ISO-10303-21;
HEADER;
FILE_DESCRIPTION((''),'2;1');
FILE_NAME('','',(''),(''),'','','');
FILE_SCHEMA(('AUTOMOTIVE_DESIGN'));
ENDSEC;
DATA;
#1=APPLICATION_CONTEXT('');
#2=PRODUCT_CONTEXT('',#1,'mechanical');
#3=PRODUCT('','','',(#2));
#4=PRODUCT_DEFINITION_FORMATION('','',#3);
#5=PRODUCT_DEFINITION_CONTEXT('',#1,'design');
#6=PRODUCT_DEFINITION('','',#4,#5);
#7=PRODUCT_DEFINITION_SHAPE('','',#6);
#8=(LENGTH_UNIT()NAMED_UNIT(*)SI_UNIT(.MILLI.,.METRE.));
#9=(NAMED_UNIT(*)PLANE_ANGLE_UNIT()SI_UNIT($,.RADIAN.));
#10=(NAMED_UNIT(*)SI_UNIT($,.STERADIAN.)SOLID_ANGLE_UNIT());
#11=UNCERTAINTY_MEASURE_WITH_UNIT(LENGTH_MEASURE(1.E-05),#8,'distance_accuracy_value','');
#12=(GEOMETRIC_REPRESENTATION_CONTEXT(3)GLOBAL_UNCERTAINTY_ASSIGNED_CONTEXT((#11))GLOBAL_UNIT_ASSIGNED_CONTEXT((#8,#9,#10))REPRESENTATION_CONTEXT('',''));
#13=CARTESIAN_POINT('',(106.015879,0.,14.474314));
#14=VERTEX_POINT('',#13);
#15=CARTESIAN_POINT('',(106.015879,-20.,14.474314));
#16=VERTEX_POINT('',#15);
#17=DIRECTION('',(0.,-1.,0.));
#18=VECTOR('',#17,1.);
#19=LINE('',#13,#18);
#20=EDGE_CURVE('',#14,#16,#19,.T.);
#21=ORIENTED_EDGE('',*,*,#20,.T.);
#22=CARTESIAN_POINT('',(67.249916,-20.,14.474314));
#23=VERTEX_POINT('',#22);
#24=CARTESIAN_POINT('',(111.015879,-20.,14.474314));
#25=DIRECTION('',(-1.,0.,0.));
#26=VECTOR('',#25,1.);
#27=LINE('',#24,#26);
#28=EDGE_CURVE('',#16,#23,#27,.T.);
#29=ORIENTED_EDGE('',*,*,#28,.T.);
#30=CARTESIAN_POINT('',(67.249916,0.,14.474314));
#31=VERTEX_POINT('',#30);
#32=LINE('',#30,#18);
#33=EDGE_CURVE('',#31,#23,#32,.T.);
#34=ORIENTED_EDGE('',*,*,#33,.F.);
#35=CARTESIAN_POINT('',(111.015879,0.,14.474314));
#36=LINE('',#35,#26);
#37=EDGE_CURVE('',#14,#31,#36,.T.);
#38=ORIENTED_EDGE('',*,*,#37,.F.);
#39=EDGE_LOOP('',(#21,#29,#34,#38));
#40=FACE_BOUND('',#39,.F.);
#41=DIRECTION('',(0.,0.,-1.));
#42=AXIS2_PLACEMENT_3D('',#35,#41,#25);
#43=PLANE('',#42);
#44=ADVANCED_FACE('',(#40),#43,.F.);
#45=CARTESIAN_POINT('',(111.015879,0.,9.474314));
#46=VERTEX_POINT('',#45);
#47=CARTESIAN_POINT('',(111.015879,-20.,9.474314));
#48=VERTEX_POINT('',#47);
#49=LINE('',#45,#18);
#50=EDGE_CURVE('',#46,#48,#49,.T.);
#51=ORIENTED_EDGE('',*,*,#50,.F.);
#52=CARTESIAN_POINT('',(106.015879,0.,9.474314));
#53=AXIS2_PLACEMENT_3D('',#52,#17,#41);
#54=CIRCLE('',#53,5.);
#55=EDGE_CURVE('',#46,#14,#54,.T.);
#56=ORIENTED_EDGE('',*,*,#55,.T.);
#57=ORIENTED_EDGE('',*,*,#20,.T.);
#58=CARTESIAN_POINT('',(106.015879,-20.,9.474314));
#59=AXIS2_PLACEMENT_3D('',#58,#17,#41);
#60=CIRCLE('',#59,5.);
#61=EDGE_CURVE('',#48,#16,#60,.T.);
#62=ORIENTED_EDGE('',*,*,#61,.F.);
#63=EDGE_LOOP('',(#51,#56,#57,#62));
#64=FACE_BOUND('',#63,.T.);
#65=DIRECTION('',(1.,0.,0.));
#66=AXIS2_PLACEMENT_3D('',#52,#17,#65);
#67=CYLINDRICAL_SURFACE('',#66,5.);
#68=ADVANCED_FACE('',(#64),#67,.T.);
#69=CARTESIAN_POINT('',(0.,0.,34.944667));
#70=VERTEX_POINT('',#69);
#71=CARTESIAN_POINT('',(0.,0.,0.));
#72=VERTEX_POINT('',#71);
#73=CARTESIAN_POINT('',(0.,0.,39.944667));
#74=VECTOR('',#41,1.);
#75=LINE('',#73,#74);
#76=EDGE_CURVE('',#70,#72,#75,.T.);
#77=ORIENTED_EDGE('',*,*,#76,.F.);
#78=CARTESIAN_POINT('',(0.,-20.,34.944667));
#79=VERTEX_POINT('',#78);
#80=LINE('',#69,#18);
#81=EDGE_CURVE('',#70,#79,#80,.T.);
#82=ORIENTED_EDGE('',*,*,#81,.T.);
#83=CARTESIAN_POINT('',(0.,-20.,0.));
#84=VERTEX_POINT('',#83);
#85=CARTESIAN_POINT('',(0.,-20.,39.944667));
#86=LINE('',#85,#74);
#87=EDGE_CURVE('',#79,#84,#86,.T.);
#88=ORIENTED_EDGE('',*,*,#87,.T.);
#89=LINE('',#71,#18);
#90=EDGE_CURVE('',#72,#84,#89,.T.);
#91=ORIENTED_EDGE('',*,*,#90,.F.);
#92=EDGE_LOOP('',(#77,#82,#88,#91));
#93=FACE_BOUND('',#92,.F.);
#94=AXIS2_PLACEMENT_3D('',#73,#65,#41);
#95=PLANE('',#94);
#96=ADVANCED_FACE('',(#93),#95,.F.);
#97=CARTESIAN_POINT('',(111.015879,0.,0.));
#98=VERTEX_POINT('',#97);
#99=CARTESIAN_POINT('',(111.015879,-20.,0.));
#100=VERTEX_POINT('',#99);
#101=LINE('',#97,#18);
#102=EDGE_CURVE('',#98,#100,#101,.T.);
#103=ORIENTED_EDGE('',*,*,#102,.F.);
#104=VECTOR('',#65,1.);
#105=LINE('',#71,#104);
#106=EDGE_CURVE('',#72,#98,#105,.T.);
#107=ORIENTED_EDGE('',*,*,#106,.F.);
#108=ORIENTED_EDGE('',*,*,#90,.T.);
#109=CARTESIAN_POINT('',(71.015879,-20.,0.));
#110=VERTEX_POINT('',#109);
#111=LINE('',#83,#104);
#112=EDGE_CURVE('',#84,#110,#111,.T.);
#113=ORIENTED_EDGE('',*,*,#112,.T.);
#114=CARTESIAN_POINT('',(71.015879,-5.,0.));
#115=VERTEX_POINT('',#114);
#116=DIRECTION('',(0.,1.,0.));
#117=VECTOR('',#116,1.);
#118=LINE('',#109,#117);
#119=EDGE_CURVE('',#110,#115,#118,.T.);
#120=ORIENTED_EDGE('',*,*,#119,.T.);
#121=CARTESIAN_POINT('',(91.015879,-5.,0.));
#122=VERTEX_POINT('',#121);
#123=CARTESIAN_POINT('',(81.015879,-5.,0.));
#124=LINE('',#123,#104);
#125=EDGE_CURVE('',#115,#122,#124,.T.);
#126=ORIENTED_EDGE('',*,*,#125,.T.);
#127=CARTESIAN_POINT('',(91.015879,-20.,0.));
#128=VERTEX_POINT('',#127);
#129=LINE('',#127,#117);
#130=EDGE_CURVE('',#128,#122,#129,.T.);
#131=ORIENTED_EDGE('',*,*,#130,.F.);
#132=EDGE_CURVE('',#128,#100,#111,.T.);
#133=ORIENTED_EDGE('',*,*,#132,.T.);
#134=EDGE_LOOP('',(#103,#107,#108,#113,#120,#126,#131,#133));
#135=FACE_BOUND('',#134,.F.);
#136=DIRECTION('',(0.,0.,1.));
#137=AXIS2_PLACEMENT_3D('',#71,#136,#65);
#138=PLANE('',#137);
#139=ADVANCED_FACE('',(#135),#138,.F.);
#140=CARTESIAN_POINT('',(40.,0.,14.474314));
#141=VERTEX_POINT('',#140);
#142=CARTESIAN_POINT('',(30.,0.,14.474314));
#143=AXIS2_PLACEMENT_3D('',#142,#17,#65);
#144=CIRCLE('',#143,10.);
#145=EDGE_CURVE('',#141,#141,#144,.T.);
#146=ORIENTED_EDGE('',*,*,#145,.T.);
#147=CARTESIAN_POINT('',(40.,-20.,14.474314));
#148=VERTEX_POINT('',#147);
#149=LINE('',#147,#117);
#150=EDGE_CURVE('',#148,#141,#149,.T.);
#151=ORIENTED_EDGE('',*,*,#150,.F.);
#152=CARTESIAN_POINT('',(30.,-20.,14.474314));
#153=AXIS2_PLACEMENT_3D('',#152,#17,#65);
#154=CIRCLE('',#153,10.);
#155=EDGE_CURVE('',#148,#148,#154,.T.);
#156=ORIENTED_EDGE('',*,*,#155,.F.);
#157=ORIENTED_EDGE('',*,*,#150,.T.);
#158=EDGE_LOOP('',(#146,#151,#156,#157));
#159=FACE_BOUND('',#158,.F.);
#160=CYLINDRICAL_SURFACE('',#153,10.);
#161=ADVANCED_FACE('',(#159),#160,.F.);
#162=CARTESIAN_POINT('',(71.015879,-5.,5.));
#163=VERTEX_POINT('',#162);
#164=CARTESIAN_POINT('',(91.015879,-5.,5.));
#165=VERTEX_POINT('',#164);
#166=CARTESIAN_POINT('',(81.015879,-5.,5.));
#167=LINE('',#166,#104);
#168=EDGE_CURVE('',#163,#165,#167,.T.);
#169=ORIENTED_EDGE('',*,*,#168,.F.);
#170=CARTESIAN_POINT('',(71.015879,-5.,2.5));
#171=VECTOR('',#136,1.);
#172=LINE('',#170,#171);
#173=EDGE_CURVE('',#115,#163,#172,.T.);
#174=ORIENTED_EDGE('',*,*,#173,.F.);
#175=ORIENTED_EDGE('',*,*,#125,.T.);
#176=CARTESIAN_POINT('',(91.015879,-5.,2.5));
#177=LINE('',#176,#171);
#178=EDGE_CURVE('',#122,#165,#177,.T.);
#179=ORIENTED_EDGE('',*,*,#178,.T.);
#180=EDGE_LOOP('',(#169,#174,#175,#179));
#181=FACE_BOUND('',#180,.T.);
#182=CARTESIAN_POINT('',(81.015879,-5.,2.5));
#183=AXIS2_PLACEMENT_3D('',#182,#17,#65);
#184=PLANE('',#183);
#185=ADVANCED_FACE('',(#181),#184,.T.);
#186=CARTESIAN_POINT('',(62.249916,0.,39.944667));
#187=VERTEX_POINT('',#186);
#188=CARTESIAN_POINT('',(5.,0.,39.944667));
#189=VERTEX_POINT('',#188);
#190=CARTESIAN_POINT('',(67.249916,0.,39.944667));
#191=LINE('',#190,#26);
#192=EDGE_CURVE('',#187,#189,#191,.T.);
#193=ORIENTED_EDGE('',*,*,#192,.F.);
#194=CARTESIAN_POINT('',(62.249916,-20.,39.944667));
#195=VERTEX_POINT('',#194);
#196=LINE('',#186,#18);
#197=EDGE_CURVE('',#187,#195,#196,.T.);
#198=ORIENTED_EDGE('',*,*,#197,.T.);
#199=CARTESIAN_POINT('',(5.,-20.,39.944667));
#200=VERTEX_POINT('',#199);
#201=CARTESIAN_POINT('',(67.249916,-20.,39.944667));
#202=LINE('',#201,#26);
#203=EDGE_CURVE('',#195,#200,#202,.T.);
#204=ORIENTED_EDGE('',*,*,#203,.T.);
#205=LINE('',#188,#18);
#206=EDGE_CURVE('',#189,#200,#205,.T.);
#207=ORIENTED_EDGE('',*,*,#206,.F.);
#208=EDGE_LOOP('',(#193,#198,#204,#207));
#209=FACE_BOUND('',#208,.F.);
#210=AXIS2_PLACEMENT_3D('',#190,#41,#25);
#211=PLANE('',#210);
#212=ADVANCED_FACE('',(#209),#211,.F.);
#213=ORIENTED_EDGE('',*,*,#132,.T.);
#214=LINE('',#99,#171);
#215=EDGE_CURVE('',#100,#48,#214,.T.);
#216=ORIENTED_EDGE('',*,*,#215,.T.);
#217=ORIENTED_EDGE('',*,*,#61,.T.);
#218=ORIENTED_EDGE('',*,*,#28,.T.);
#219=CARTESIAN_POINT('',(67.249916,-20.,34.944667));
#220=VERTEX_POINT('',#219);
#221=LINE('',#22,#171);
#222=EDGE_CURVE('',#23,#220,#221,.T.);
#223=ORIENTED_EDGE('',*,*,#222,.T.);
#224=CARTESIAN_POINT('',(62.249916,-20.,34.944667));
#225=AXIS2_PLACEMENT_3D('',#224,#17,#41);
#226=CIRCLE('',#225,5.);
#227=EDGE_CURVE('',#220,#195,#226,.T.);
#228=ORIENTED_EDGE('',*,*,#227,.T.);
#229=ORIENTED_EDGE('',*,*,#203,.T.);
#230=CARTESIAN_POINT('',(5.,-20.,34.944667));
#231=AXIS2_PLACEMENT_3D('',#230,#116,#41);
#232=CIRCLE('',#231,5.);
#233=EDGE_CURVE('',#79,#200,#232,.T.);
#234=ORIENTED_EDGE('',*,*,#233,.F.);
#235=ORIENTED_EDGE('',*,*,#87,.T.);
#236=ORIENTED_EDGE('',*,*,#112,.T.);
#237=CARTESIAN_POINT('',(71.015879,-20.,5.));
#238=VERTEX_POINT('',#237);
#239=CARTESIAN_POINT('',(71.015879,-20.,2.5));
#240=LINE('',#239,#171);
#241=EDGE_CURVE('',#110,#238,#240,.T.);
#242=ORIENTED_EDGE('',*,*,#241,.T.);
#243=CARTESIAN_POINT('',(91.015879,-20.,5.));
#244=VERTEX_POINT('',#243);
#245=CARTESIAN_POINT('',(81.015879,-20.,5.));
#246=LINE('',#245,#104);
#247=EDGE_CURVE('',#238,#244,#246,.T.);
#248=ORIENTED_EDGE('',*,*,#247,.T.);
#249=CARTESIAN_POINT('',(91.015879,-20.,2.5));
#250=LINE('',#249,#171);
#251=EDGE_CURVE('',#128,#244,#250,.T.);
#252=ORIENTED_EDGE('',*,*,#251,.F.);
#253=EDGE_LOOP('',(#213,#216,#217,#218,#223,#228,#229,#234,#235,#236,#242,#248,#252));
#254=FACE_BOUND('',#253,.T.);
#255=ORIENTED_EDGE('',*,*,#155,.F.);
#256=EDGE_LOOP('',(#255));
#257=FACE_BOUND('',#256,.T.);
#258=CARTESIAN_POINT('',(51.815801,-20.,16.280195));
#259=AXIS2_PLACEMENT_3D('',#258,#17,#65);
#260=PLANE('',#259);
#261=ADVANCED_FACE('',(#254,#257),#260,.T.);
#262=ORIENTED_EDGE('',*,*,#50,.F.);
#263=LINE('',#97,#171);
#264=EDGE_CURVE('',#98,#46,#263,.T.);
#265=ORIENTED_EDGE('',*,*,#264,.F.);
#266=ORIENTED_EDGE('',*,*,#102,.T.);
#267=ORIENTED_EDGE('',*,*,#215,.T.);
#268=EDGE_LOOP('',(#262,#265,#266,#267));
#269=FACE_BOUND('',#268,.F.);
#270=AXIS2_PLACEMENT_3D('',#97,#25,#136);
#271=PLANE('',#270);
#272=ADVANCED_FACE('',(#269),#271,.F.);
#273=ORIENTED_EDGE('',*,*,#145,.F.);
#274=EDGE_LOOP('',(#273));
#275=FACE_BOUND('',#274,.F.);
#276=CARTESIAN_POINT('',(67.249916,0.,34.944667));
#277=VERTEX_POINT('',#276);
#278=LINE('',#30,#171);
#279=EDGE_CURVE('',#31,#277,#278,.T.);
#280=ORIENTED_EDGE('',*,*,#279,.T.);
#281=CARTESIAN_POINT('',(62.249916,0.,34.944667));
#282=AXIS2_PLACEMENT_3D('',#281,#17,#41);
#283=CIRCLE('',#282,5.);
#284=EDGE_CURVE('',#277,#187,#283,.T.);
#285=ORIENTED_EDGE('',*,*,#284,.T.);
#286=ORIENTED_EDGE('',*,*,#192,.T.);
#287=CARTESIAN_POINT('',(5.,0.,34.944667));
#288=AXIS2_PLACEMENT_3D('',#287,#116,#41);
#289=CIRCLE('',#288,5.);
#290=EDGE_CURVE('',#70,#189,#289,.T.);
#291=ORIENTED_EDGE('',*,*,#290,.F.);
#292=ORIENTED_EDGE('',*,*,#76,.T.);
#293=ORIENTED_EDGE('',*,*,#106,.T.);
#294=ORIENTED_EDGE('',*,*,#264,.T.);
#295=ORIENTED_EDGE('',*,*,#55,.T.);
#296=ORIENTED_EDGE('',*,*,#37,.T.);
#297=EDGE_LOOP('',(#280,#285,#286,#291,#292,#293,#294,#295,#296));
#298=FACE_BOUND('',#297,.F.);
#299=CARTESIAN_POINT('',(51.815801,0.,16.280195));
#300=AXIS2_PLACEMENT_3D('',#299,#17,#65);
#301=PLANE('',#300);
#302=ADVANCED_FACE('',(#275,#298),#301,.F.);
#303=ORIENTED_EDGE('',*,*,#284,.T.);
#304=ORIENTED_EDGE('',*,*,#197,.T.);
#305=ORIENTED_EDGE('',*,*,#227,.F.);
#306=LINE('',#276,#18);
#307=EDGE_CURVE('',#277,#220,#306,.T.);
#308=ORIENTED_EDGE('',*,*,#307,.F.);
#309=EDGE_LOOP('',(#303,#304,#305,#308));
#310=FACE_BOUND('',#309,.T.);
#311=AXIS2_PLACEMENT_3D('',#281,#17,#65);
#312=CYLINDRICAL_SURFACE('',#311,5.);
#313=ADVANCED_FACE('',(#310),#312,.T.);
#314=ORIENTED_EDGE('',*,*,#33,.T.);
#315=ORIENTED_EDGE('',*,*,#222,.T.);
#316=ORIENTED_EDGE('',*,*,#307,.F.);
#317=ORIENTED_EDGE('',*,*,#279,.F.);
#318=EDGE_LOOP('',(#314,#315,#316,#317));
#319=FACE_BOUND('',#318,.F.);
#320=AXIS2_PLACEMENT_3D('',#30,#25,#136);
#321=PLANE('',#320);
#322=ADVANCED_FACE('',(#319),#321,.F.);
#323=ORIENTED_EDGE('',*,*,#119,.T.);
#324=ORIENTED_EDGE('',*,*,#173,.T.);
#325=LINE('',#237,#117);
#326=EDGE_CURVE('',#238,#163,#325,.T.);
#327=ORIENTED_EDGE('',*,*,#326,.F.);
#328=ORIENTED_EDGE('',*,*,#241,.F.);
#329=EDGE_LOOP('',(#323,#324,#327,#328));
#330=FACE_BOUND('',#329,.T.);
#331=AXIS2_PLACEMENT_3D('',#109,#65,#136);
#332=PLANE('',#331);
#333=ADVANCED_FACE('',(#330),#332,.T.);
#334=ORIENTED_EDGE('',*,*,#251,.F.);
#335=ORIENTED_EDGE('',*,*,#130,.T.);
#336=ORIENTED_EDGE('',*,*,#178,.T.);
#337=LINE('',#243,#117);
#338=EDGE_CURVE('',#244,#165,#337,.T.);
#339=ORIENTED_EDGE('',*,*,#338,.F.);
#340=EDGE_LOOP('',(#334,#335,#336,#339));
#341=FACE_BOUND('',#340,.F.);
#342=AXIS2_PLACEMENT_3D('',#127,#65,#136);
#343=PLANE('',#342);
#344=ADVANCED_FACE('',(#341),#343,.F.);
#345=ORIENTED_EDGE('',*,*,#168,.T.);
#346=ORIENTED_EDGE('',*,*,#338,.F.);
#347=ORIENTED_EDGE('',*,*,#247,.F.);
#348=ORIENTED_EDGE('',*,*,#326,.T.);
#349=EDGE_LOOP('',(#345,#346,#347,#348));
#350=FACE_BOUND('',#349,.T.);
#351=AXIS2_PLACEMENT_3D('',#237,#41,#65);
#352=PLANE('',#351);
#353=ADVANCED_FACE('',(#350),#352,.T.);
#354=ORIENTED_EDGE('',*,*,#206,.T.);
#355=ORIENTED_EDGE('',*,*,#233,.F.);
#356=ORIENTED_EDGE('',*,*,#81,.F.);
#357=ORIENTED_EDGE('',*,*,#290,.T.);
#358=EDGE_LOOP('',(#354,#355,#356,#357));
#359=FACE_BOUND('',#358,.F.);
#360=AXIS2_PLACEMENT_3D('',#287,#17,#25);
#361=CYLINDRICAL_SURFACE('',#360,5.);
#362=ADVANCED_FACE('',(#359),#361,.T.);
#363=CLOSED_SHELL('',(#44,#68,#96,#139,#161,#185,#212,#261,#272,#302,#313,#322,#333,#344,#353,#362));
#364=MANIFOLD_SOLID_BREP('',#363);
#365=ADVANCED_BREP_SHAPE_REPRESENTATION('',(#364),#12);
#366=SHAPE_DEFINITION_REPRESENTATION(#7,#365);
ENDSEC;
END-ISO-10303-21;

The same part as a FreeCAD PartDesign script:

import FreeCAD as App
import Part
import Sketcher
from FreeCAD import Vector
Q = App.Units.Quantity


def edges_at(feature, points):
    """Names of the edges that pass closest to the given points."""
    edges = feature.Shape.Edges
    near = lambda p: min(range(len(edges)), key=lambda i: edges[i].distToShape(Part.Vertex(*p))[0])
    return sorted({f"Edge{near(p) + 1}" for p in points})


def add_polygon(sketch, points):
    """Adds a closed chain of lines whose ends are joined by coincident constraints."""
    first, n = sketch.GeometryCount, len(points)
    for a, b in zip(points, points[1:] + points[:1]):
        sketch.addGeometry(Part.LineSegment(App.Vector(*a, 0), App.Vector(*b, 0)), False)
    for i in range(n):
        sketch.addConstraint(Sketcher.Constraint("Coincident", first + i, 2, first + (i + 1) % n, 1))

doc = App.newDocument("Part")
params = doc.addObject("Spreadsheet::Sheet", "Params")
for row, (alias, value) in enumerate([
    ("pad1_length", "20 mm"),
    ("fillet_radius", "5 mm"),
    ("sketch2_diameter", "20 mm"),
    ("sketch3_width", "20 mm"),
    ("sketch3_height", "5 mm"),
    ("pocket2_length", "15 mm"),
], start=1):
    params.set(f"A{row}", alias)
    params.set(f"B{row}", "=" + value)
    params.setAlias(f"B{row}", alias)

body = doc.addObject("PartDesign::Body", "Body")

# Sketch on XZ plane
sketch1 = doc.addObject("Sketcher::SketchObject", "Sketch")
body.addObject(sketch1)
sketch1.AttachmentSupport = (doc.XZ_Plane, [""])
sketch1.MapMode = "FlatFace"
add_polygon(sketch1, [(0, 39.944667), (0, 0), (111.015879, 0), (111.015879, 14.474314), (67.249916, 14.474314), (67.249916, 39.944667)])  # lines 0-5
sketch1.addConstraint([
    Sketcher.Constraint("Vertical", 0),
    Sketcher.Constraint("Horizontal", 1),
    Sketcher.Constraint("Vertical", 2),
    Sketcher.Constraint("Horizontal", 3),
    Sketcher.Constraint("Vertical", 4),
    Sketcher.Constraint("Horizontal", 5),
    Sketcher.Constraint("Coincident", 0, 2, -1, 1),
    Sketcher.Constraint("DistanceX", 1, 1, 1, 2, Q("111.015879 mm")),
    Sketcher.Constraint("DistanceX", 3, 2, 3, 1, Q("43.765963 mm")),
    Sketcher.Constraint("DistanceY", 0, 2, 0, 1, Q("39.944667 mm")),
    Sketcher.Constraint("DistanceY", 2, 1, 2, 2, Q("14.474314 mm")),
])
pad1 = doc.addObject("PartDesign::Pad", "Pad")
body.addObject(pad1)
pad1.Profile = sketch1
pad1.setExpression("Length", "Params.pad1_length")
doc.recompute()

fillet = doc.addObject("PartDesign::Fillet", "Fillet")
body.addObject(fillet)
fillet.Base = (pad1, edges_at(pad1, [(67.25, -10, 39.945), (111.016, -10, 14.474), (0, -10, 39.945)]))
fillet.setExpression("Radius", "Params.fillet_radius")

# Sketch on XZ plane
sketch2 = doc.addObject("Sketcher::SketchObject", "Sketch001")
body.addObject(sketch2)
sketch2.AttachmentSupport = (doc.XZ_Plane, [""])
sketch2.MapMode = "FlatFace"
sketch2.AttachmentOffset = App.Placement(Vector(0, 0, 20), App.Rotation())
sketch2.addGeometry(Part.Circle(Vector(30, 14.474314, 0), Vector(0, 0, 1), 10), False)
sketch2.addConstraint([
    Sketcher.Constraint("Diameter", 0, Q("20 mm")),
    Sketcher.Constraint("DistanceX", -1, 1, 0, 3, Q("30 mm")),
    Sketcher.Constraint("DistanceY", -1, 1, 0, 3, Q("14.474314 mm")),
])
sketch2.setExpression("Constraints[0]", "Params.sketch2_diameter")
pocket1 = doc.addObject("PartDesign::Pocket", "Pocket")
body.addObject(pocket1)
pocket1.Profile = sketch2
pocket1.Type = "ThroughAll"

# Sketch on XZ plane
sketch3 = doc.addObject("Sketcher::SketchObject", "Sketch002")
body.addObject(sketch3)
sketch3.AttachmentSupport = (doc.XZ_Plane, [""])
sketch3.MapMode = "FlatFace"
sketch3.AttachmentOffset = App.Placement(Vector(0, 0, 20), App.Rotation())
add_polygon(sketch3, [(71.015879, 5), (71.015879, 0), (91.015879, 0), (91.015879, 5)])  # lines 0-3
sketch3.addConstraint([
    Sketcher.Constraint("Vertical", 0),
    Sketcher.Constraint("Horizontal", 1),
    Sketcher.Constraint("Vertical", 2),
    Sketcher.Constraint("Horizontal", 3),
    Sketcher.Constraint("PointOnObject", 0, 2, -1),
    Sketcher.Constraint("DistanceX", 1, 1, 1, 2, Q("20 mm")),
    Sketcher.Constraint("DistanceY", 0, 2, 0, 1, Q("5 mm")),
    Sketcher.Constraint("DistanceX", -1, 1, 0, 2, Q("71.015879 mm")),
])
sketch3.setExpression("Constraints[9]", "Params.sketch3_width")
sketch3.setExpression("Constraints[10]", "Params.sketch3_height")
pocket2 = doc.addObject("PartDesign::Pocket", "Pocket001")
body.addObject(pocket2)
pocket2.Profile = sketch3
pocket2.setExpression("Length", "Params.pocket2_length")

doc.recompute()
